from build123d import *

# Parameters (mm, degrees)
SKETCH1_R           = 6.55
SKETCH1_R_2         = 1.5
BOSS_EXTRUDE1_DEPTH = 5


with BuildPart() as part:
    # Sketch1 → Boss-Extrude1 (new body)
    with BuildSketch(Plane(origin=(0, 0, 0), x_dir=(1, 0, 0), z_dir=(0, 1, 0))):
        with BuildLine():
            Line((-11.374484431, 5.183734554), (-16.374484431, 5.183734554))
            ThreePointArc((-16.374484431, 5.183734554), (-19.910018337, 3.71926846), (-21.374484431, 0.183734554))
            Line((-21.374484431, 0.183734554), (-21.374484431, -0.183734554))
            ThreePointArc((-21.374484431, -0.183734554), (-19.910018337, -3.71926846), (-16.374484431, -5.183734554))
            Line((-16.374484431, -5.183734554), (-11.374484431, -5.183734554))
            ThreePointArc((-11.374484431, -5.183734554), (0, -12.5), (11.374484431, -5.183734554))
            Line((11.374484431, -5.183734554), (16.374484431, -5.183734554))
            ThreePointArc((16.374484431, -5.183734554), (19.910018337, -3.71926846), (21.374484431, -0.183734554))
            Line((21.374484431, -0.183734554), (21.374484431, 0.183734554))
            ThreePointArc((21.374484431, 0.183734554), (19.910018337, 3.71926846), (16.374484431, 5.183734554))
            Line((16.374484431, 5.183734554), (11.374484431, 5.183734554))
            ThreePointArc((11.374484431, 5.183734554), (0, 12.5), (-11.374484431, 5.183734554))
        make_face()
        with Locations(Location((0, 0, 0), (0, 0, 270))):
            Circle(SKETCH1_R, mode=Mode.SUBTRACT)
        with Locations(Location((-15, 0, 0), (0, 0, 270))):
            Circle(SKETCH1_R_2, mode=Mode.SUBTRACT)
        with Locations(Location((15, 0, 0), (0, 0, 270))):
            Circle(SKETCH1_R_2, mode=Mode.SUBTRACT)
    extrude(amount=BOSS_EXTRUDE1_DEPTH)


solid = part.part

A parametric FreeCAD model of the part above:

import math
import FreeCAD as App
import Part
import Sketcher
from FreeCAD import Vector

doc = App.newDocument("Part")
body = doc.addObject("PartDesign::Body", "Body")

sketch1 = doc.addObject("Sketcher::SketchObject", "Sketch")
body.addObject(sketch1)
sketch1.AttachmentSupport = (doc.XZ_Plane, [""])
sketch1.MapMode = "FlatFace"
sketch1.addGeometry(Part.LineSegment(Vector(-11.374484, -5.183735, 0), Vector(-16.374484, -5.183735, 0)), False)
sketch1.addGeometry(Part.ArcOfCircle(Part.Circle(Vector(-16.374484, -0.183735, 0), Vector(0, 0, 1), 5), math.radians(180), math.radians(270)), False)
sketch1.addGeometry(Part.LineSegment(Vector(-21.374484, -0.183735, 0), Vector(-21.374484, 0.183735, 0)), False)
sketch1.addGeometry(Part.ArcOfCircle(Part.Circle(Vector(-16.374484, 0.183735, 0), Vector(0, 0, 1), 5), math.radians(90), math.radians(180)), False)
sketch1.addGeometry(Part.LineSegment(Vector(-16.374484, 5.183735, 0), Vector(-11.374484, 5.183735, 0)), False)
sketch1.addGeometry(Part.ArcOfCircle(Part.Circle(Vector(0, 0, 0), Vector(0, 0, 1), 12.5), math.radians(24.500348), math.radians(155.499652)), False)
sketch1.addGeometry(Part.LineSegment(Vector(11.374484, 5.183735, 0), Vector(16.374484, 5.183735, 0)), False)
sketch1.addGeometry(Part.ArcOfCircle(Part.Circle(Vector(16.374484, 0.183735, 0), Vector(0, 0, 1), 5), math.radians(0), math.radians(90)), False)
sketch1.addGeometry(Part.LineSegment(Vector(21.374484, 0.183735, 0), Vector(21.374484, -0.183735, 0)), False)
sketch1.addGeometry(Part.ArcOfCircle(Part.Circle(Vector(16.374484, -0.183735, 0), Vector(0, 0, 1), 5), math.radians(-90), math.radians(0)), False)
sketch1.addGeometry(Part.LineSegment(Vector(16.374484, -5.183735, 0), Vector(11.374484, -5.183735, 0)), False)
sketch1.addGeometry(Part.ArcOfCircle(Part.Circle(Vector(0, 0, 0), Vector(0, 0, 1), 12.5), math.radians(-155.499652), math.radians(-24.500348)), False)
sketch1.addGeometry(Part.Circle(Vector(-15, 0, 0), Vector(0, 0, 1), 1.5), False)
sketch1.addGeometry(Part.Circle(Vector(0, 0, 0), Vector(0, 0, 1), 6.55), False)
sketch1.addGeometry(Part.Circle(Vector(15, 0, 0), Vector(0, 0, 1), 1.5), False)
sketch1.addConstraint(Sketcher.Constraint("Tangent", 0, 2, 1, 2))
sketch1.addConstraint(Sketcher.Constraint("Tangent", 1, 1, 2, 1))
sketch1.addConstraint(Sketcher.Constraint("Tangent", 2, 2, 3, 2))
sketch1.addConstraint(Sketcher.Constraint("Tangent", 3, 1, 4, 1))
sketch1.addConstraint(Sketcher.Constraint("Coincident", 4, 2, 5, 2))
sketch1.addConstraint(Sketcher.Constraint("Coincident", 5, 1, 6, 1))
sketch1.addConstraint(Sketcher.Constraint("Tangent", 6, 2, 7, 2))
sketch1.addConstraint(Sketcher.Constraint("Tangent", 7, 1, 8, 1))
sketch1.addConstraint(Sketcher.Constraint("Tangent", 8, 2, 9, 2))
sketch1.addConstraint(Sketcher.Constraint("Tangent", 9, 1, 10, 1))
sketch1.addConstraint(Sketcher.Constraint("Coincident", 10, 2, 11, 2))
sketch1.addConstraint(Sketcher.Constraint("Coincident", 11, 1, 0, 1))
sketch1.addConstraint(Sketcher.Constraint("Horizontal", 0))
sketch1.addConstraint(Sketcher.Constraint("Vertical", 2))
sketch1.addConstraint(Sketcher.Constraint("Horizontal", 4))
sketch1.addConstraint(Sketcher.Constraint("Horizontal", 6))
sketch1.addConstraint(Sketcher.Constraint("Vertical", 8))
sketch1.addConstraint(Sketcher.Constraint("Horizontal", 10))
sketch1.addConstraint(Sketcher.Constraint("Coincident", 5, 3, -1, 1))
sketch1.addConstraint(Sketcher.Constraint("Coincident", 11, 3, -1, 1))
sketch1.addConstraint(Sketcher.Constraint("Coincident", 13, 3, -1, 1))
sketch1.addConstraint(Sketcher.Constraint("Equal", 1, 3))
sketch1.addConstraint(Sketcher.Constraint("Equal", 3, 7))
sketch1.addConstraint(Sketcher.Constraint("Equal", 7, 9))
sketch1.addConstraint(Sketcher.Constraint("Equal", 5, 11))
sketch1.addConstraint(Sketcher.Constraint("Equal", 12, 14))
sketch1.addConstraint(Sketcher.Constraint("Symmetric", 1, 3, 7, 3, -1, 1))
sketch1.addConstraint(Sketcher.Constraint("Symmetric", 12, 3, 14, 3, -1, 1))
sketch1.addConstraint(Sketcher.Constraint("PointOnObject", 12, 3, -1))
sketch1.addConstraint(Sketcher.Constraint("Horizontal", 3, 3, 7, 3))
sketch1.addConstraint(Sketcher.Constraint("Horizontal", 1, 3, 9, 3))
sketch1.addConstraint(Sketcher.Constraint("Diameter", 12, 3.0))
sketch1.addConstraint(Sketcher.Constraint("Radius", 1, 5.0))
sketch1.addConstraint(Sketcher.Constraint("Diameter", 13, 13.1))
sketch1.addConstraint(Sketcher.Constraint("Radius", 5, 12.5))
sketch1.addConstraint(Sketcher.Constraint("DistanceX", 0, 2, 0, 1, 5.0))
sketch1.addConstraint(Sketcher.Constraint("DistanceX", 12, 3, -1, 1, 15.0))
sketch1.addConstraint(Sketcher.Constraint("DistanceY", 2, 1, 2, 2, 0.367469))
pad1 = doc.addObject("PartDesign::Pad", "Pad")
body.addObject(pad1)
pad1.Profile = sketch1
pad1.Length = 5
pad1.Reversed = True

doc.recompute()
